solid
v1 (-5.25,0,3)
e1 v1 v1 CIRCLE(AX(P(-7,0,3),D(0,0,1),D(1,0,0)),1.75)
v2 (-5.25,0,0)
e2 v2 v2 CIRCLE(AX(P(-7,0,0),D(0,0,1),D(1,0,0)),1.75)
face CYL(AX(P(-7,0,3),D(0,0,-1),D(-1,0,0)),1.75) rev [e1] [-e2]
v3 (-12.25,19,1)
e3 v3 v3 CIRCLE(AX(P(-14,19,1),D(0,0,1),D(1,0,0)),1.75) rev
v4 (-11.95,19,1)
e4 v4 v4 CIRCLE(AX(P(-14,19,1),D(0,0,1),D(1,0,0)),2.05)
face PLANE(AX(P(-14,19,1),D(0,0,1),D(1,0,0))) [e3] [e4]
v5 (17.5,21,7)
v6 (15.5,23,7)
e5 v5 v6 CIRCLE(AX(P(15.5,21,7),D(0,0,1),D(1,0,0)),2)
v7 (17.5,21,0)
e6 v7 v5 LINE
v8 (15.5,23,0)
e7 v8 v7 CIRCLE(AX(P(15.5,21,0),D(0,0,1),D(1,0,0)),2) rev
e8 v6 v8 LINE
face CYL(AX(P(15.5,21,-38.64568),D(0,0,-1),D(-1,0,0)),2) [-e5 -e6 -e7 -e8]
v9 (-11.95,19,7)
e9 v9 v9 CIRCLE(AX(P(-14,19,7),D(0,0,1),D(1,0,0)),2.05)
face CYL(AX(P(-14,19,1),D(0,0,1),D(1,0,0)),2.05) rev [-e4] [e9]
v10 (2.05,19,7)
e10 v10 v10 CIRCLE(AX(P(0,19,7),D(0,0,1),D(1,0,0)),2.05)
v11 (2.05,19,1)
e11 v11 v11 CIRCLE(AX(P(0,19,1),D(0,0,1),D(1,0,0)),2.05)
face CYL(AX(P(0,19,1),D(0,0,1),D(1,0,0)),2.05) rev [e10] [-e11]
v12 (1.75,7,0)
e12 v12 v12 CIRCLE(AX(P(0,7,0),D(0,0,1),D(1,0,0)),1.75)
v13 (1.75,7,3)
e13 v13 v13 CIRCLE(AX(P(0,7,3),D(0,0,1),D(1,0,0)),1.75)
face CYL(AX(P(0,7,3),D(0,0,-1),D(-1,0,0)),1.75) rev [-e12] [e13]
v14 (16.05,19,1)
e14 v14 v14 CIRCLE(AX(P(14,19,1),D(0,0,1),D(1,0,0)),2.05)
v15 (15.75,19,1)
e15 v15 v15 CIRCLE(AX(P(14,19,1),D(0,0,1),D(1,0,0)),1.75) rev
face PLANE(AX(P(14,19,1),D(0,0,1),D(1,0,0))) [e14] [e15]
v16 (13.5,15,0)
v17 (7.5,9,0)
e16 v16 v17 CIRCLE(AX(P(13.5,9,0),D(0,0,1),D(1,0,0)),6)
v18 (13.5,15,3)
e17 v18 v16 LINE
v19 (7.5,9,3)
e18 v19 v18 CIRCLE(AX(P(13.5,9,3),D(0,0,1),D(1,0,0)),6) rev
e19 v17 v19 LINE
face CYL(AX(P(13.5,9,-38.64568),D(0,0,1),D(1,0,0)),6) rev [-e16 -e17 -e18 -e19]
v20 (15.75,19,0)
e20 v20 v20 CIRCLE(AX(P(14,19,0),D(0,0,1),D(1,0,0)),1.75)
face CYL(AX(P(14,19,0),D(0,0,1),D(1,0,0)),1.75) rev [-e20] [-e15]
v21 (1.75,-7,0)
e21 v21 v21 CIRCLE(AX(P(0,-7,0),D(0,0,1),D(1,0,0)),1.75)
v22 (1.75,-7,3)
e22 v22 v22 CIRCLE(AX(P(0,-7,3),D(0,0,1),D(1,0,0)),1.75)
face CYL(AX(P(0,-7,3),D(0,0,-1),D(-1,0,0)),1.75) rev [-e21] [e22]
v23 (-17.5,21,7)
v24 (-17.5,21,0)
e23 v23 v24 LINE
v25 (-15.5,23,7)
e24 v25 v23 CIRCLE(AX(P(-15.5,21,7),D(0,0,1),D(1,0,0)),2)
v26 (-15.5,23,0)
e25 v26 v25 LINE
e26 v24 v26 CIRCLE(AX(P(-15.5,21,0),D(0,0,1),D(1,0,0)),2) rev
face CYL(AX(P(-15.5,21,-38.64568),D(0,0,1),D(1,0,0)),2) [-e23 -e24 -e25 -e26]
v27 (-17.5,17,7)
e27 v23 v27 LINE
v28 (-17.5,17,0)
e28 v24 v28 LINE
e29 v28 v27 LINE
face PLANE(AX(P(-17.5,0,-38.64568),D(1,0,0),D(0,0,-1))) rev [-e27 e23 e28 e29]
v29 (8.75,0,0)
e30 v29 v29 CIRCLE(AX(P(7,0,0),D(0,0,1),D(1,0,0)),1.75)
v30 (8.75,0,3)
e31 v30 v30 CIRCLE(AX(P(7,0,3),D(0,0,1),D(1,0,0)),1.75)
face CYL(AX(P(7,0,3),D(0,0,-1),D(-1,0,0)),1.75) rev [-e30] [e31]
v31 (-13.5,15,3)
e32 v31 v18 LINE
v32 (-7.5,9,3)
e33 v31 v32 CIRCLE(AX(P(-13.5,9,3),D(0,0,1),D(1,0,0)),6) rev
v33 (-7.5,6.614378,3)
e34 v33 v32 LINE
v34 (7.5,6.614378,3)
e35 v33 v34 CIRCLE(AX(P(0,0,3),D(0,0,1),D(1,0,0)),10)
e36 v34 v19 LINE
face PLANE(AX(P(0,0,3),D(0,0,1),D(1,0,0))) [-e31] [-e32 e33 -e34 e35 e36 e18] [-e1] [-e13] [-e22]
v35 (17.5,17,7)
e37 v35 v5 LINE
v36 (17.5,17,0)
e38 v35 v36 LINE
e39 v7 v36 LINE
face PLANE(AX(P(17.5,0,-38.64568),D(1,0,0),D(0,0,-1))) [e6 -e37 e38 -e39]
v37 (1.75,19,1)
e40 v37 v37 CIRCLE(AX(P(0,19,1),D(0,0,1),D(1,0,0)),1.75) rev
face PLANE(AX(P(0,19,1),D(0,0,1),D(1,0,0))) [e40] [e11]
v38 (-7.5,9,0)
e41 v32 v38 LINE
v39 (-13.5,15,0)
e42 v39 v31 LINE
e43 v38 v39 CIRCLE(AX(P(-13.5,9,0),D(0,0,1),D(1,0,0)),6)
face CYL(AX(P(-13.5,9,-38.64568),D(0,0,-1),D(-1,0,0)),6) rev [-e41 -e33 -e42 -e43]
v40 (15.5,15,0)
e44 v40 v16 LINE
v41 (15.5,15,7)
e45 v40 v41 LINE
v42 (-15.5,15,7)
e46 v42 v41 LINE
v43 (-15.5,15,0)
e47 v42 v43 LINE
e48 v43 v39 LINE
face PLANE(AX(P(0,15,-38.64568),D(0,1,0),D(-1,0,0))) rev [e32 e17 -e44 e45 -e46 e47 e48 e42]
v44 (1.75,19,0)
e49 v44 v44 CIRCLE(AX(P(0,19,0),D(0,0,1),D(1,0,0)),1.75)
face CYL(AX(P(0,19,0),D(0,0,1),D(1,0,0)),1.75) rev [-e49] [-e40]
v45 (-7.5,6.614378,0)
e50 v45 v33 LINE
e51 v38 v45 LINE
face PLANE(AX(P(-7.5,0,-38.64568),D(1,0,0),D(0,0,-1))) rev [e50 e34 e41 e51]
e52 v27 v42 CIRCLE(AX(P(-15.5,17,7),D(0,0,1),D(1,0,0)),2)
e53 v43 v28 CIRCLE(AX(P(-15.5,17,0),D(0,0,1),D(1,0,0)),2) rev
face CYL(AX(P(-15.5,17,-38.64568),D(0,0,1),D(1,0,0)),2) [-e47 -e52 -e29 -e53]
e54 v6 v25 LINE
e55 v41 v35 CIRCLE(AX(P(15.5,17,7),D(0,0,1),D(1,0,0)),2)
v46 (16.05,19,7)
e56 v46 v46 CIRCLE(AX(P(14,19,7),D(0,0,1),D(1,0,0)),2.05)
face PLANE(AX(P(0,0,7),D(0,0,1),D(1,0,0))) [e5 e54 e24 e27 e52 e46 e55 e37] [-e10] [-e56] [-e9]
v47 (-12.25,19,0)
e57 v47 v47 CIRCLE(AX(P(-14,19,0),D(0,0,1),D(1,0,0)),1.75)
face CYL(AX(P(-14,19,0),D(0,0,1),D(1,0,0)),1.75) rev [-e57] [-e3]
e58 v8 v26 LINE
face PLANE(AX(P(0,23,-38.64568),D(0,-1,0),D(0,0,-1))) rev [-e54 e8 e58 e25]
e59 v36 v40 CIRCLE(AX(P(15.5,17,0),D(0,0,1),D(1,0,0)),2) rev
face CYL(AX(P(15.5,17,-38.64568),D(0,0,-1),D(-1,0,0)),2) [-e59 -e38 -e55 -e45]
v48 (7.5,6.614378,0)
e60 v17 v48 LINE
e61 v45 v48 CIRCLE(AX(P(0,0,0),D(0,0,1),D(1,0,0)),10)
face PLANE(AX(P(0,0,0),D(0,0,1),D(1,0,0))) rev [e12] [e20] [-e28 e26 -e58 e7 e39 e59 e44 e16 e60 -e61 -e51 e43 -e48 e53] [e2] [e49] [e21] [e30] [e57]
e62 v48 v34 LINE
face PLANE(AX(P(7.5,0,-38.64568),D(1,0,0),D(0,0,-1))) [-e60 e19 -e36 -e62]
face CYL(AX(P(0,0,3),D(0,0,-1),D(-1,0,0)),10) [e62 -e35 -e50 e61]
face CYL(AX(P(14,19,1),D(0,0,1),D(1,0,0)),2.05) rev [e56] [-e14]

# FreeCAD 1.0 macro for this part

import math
import FreeCAD as App
import Part
import Sketcher


def edges_at(feature, points):
    """Names of the edges that pass closest to the given points."""
    edges = feature.Shape.Edges
    near = lambda p: min(range(len(edges)), key=lambda i: edges[i].distToShape(Part.Vertex(*p))[0])
    return sorted({f"Edge{near(p) + 1}" for p in points})

doc = App.newDocument("Part")
body = doc.addObject("PartDesign::Body", "Body")

sketch1 = body.newObject("Sketcher::SketchObject", "Sketch")
sketch1.AttachmentSupport = (doc.getObject("XY_Plane"), [""])
sketch1.MapMode = "FlatFace"
sketch1.addGeometry(Part.Circle(App.Vector(0, 0, 0), App.Vector(0, 0, 1), 10), False)
sketch1.addGeometry(Part.Circle(App.Vector(0, -7, 0), App.Vector(0, 0, 1), 1.8), False)
sketch1.addGeometry(Part.Circle(App.Vector(-7, 0, 0), App.Vector(0, 0, 1), 1.8), False)
sketch1.addGeometry(Part.Circle(App.Vector(7, 0, 0), App.Vector(0, 0, 1), 1.8), False)
sketch1.addGeometry(Part.Circle(App.Vector(0, 7, 0), App.Vector(0, 0, 1), 1.8), False)
sketch1.addConstraint(Sketcher.Constraint("Coincident", 0, 3, -1, 1))
sketch1.addConstraint(Sketcher.Constraint("Equal", 1, 2))
sketch1.addConstraint(Sketcher.Constraint("Equal", 2, 3))
sketch1.addConstraint(Sketcher.Constraint("Equal", 3, 4))
sketch1.addConstraint(Sketcher.Constraint("Symmetric", 2, 3, 3, 3, -1, 1))
sketch1.addConstraint(Sketcher.Constraint("Symmetric", 1, 3, 4, 3, -1, 1))
sketch1.addConstraint(Sketcher.Constraint("PointOnObject", 1, 3, -2))
sketch1.addConstraint(Sketcher.Constraint("PointOnObject", 2, 3, -1))
sketch1.addConstraint(Sketcher.Constraint("Diameter", 0, 20.0))
sketch1.addConstraint(Sketcher.Constraint("Diameter", 1, 3.5))
sketch1.addConstraint(Sketcher.Constraint("DistanceY", 1, 3, -1, 1, 7.0))
sketch1.addConstraint(Sketcher.Constraint("DistanceX", 2, 3, -1, 1, 7.0))
pad1 = body.newObject("PartDesign::Pad", "Pad")
pad1.Profile = sketch1
pad1.Length = 3

sketch2 = body.newObject("Sketcher::SketchObject", "Sketch001")
sketch2.AttachmentSupport = (doc.getObject("XY_Plane"), [""])
sketch2.MapMode = "FlatFace"
sketch2.AttachmentOffset = App.Placement(App.Vector(0, 0, 3), App.Rotation())
sketch2.addGeometry(Part.LineSegment(App.Vector(-8, 15, 0), App.Vector(-8, 7, 0)), False)
sketch2.addGeometry(Part.ArcOfCircle(Part.Circle(App.Vector(0, 0, 0), App.Vector(0, 0, 1), 10), math.radians(41), math.radians(139)), False)
sketch2.addGeometry(Part.LineSegment(App.Vector(8, 7, 0), App.Vector(8, 15, 0)), False)
sketch2.addGeometry(Part.LineSegment(App.Vector(8, 15, 0), App.Vector(18, 15, 0)), False)
sketch2.addGeometry(Part.LineSegment(App.Vector(18, 15, 0), App.Vector(18, 23, 0)), False)
sketch2.addGeometry(Part.LineSegment(App.Vector(18, 23, 0), App.Vector(-18, 23, 0)), False)
sketch2.addGeometry(Part.LineSegment(App.Vector(-18, 23, 0), App.Vector(-18, 15, 0)), False)
sketch2.addGeometry(Part.LineSegment(App.Vector(-18, 15, 0), App.Vector(-8, 15, 0)), False)
sketch2.addConstraint(Sketcher.Constraint("Coincident", 0, 2, 1, 2))
sketch2.addConstraint(Sketcher.Constraint("Coincident", 1, 1, 2, 1))
sketch2.addConstraint(Sketcher.Constraint("Coincident", 2, 2, 3, 1))
sketch2.addConstraint(Sketcher.Constraint("Coincident", 3, 2, 4, 1))
sketch2.addConstraint(Sketcher.Constraint("Coincident", 4, 2, 5, 1))
sketch2.addConstraint(Sketcher.Constraint("Coincident", 5, 2, 6, 1))
sketch2.addConstraint(Sketcher.Constraint("Coincident", 6, 2, 7, 1))
sketch2.addConstraint(Sketcher.Constraint("Coincident", 7, 2, 0, 1))
sketch2.addConstraint(Sketcher.Constraint("Vertical", 0))
sketch2.addConstraint(Sketcher.Constraint("Vertical", 2))
sketch2.addConstraint(Sketcher.Constraint("Horizontal", 3))
sketch2.addConstraint(Sketcher.Constraint("Vertical", 4))
sketch2.addConstraint(Sketcher.Constraint("Horizontal", 5))
sketch2.addConstraint(Sketcher.Constraint("Vertical", 6))
sketch2.addConstraint(Sketcher.Constraint("Horizontal", 7))
sketch2.addConstraint(Sketcher.Constraint("Coincident", 1, 3, -1, 1))
sketch2.addConstraint(Sketcher.Constraint("Symmetric", 3, 2, 6, 2, -2))
sketch2.addConstraint(Sketcher.Constraint("Horizontal", 0, 2, 1, 1))
sketch2.addConstraint(Sketcher.Constraint("Radius", 1, 10.0))
sketch2.addConstraint(Sketcher.Constraint("DistanceX", 3, 1, 3, 2, 10.0))
sketch2.addConstraint(Sketcher.Constraint("DistanceX", 5, 2, 5, 1, 35.0))
sketch2.addConstraint(Sketcher.Constraint("DistanceY", 4, 1, 4, 2, 8.0))
sketch2.addConstraint(Sketcher.Constraint("DistanceY", -1, 1, 2, 2, 15.0))
pad2 = body.newObject("PartDesign::Pad", "Pad001")
pad2.Profile = sketch2
pad2.Length = 3
pad2.Reversed = True

sketch3 = body.newObject("Sketcher::SketchObject", "Sketch002")
sketch3.AttachmentSupport = (doc.getObject("XY_Plane"), [""])
sketch3.MapMode = "FlatFace"
sketch3.AttachmentOffset = App.Placement(App.Vector(0, 0, 3), App.Rotation())
sketch3.addGeometry(Part.LineSegment(App.Vector(-18, 23, 0), App.Vector(-18, 15, 0)), False)
sketch3.addGeometry(Part.LineSegment(App.Vector(-18, 15, 0), App.Vector(18, 15, 0)), False)
sketch3.addGeometry(Part.LineSegment(App.Vector(18, 15, 0), App.Vector(18, 23, 0)), False)
sketch3.addGeometry(Part.LineSegment(App.Vector(18, 23, 0), App.Vector(-18, 23, 0)), False)
sketch3.addConstraint(Sketcher.Constraint("Coincident", 0, 2, 1, 1))
sketch3.addConstraint(Sketcher.Constraint("Coincident", 1, 2, 2, 1))
sketch3.addConstraint(Sketcher.Constraint("Coincident", 2, 2, 3, 1))
sketch3.addConstraint(Sketcher.Constraint("Coincident", 3, 2, 0, 1))
sketch3.addConstraint(Sketcher.Constraint("Vertical", 0))
sketch3.addConstraint(Sketcher.Constraint("Horizontal", 1))
sketch3.addConstraint(Sketcher.Constraint("Vertical", 2))
sketch3.addConstraint(Sketcher.Constraint("Horizontal", 3))
sketch3.addConstraint(Sketcher.Constraint("DistanceX", 1, 1, 1, 2, 35.0))
sketch3.addConstraint(Sketcher.Constraint("DistanceY", 0, 2, 0, 1, 8.0))
sketch3.addConstraint(Sketcher.Constraint("DistanceY", -1, 1, 0, 2, 15.0))
sketch3.addConstraint(Sketcher.Constraint("DistanceX", 0, 2, -1, 1, 17.5))
pad3 = body.newObject("PartDesign::Pad", "Pad002")
pad3.Profile = sketch3
pad3.Length = 4
doc.recompute()

fillet = body.newObject("PartDesign::Fillet", "Fillet")
fillet.Base = (pad3, edges_at(pad3, [(-7.5, 15, 1.5), (7.5, 15, 1.5)]))
fillet.Radius = 6

sketch4 = body.newObject("Sketcher::SketchObject", "Sketch003")
sketch4.AttachmentSupport = (doc.getObject("XY_Plane"), [""])
sketch4.MapMode = "FlatFace"
sketch4.AttachmentOffset = App.Placement(App.Vector(0, 0, 7), App.Rotation())
sketch4.addGeometry(Part.Circle(App.Vector(0, 19, 0), App.Vector(0, 0, 1), 1.8), False)
sketch4.addGeometry(Part.Circle(App.Vector(-14, 19, 0), App.Vector(0, 0, 1), 1.8), False)
sketch4.addGeometry(Part.Circle(App.Vector(14, 19, 0), App.Vector(0, 0, 1), 1.8), False)
sketch4.addConstraint(Sketcher.Constraint("Equal", 0, 1))
sketch4.addConstraint(Sketcher.Constraint("Equal", 1, 2))
sketch4.addConstraint(Sketcher.Constraint("Symmetric", 1, 3, 2, 3, -2))
sketch4.addConstraint(Sketcher.Constraint("PointOnObject", 0, 3, -2))
sketch4.addConstraint(Sketcher.Constraint("Horizontal", 0, 3, 1, 3))
sketch4.addConstraint(Sketcher.Constraint("Diameter", 0, 3.5))
sketch4.addConstraint(Sketcher.Constraint("DistanceY", -1, 1, 0, 3, 19.0))
sketch4.addConstraint(Sketcher.Constraint("DistanceX", 1, 3, -1, 1, 14.0))
pocket1 = body.newObject("PartDesign::Pocket", "Pocket")
pocket1.Profile = sketch4
pocket1.Type = "ThroughAll"
doc.recompute()

fillet2 = body.newObject("PartDesign::Fillet", "Fillet001")
fillet2.Base = (pocket1, edges_at(pocket1, [
    (-17.5, 15, 3.5),
    (-17.5, 23, 3.5),
    (17.5, 23, 3.5),
    (17.5, 15, 3.5),
]))
fillet2.Radius = 2

sketch5 = body.newObject("Sketcher::SketchObject", "Sketch004")
sketch5.AttachmentSupport = (doc.getObject("XY_Plane"), [""])
sketch5.MapMode = "FlatFace"
sketch5.AttachmentOffset = App.Placement(App.Vector(0, 0, 7), App.Rotation())
sketch5.addGeometry(Part.Circle(App.Vector(-14, 19, 0), App.Vector(0, 0, 1), 2), False)
sketch5.addGeometry(Part.Circle(App.Vector(0, 19, 0), App.Vector(0, 0, 1), 2), False)
sketch5.addGeometry(Part.Circle(App.Vector(14, 19, 0), App.Vector(0, 0, 1), 2), False)
sketch5.addConstraint(Sketcher.Constraint("Equal", 0, 1))
sketch5.addConstraint(Sketcher.Constraint("Equal", 1, 2))
sketch5.addConstraint(Sketcher.Constraint("Symmetric", 0, 3, 2, 3, -2))
sketch5.addConstraint(Sketcher.Constraint("PointOnObject", 1, 3, -2))
sketch5.addConstraint(Sketcher.Constraint("Horizontal", 0, 3, 1, 3))
sketch5.addConstraint(Sketcher.Constraint("Diameter", 0, 4.1))
sketch5.addConstraint(Sketcher.Constraint("DistanceX", 0, 3, -1, 1, 14.0))
sketch5.addConstraint(Sketcher.Constraint("DistanceY", -1, 1, 0, 3, 19.0))
pocket2 = body.newObject("PartDesign::Pocket", "Pocket001")
pocket2.Profile = sketch5
pocket2.Length = 6

doc.recompute()
